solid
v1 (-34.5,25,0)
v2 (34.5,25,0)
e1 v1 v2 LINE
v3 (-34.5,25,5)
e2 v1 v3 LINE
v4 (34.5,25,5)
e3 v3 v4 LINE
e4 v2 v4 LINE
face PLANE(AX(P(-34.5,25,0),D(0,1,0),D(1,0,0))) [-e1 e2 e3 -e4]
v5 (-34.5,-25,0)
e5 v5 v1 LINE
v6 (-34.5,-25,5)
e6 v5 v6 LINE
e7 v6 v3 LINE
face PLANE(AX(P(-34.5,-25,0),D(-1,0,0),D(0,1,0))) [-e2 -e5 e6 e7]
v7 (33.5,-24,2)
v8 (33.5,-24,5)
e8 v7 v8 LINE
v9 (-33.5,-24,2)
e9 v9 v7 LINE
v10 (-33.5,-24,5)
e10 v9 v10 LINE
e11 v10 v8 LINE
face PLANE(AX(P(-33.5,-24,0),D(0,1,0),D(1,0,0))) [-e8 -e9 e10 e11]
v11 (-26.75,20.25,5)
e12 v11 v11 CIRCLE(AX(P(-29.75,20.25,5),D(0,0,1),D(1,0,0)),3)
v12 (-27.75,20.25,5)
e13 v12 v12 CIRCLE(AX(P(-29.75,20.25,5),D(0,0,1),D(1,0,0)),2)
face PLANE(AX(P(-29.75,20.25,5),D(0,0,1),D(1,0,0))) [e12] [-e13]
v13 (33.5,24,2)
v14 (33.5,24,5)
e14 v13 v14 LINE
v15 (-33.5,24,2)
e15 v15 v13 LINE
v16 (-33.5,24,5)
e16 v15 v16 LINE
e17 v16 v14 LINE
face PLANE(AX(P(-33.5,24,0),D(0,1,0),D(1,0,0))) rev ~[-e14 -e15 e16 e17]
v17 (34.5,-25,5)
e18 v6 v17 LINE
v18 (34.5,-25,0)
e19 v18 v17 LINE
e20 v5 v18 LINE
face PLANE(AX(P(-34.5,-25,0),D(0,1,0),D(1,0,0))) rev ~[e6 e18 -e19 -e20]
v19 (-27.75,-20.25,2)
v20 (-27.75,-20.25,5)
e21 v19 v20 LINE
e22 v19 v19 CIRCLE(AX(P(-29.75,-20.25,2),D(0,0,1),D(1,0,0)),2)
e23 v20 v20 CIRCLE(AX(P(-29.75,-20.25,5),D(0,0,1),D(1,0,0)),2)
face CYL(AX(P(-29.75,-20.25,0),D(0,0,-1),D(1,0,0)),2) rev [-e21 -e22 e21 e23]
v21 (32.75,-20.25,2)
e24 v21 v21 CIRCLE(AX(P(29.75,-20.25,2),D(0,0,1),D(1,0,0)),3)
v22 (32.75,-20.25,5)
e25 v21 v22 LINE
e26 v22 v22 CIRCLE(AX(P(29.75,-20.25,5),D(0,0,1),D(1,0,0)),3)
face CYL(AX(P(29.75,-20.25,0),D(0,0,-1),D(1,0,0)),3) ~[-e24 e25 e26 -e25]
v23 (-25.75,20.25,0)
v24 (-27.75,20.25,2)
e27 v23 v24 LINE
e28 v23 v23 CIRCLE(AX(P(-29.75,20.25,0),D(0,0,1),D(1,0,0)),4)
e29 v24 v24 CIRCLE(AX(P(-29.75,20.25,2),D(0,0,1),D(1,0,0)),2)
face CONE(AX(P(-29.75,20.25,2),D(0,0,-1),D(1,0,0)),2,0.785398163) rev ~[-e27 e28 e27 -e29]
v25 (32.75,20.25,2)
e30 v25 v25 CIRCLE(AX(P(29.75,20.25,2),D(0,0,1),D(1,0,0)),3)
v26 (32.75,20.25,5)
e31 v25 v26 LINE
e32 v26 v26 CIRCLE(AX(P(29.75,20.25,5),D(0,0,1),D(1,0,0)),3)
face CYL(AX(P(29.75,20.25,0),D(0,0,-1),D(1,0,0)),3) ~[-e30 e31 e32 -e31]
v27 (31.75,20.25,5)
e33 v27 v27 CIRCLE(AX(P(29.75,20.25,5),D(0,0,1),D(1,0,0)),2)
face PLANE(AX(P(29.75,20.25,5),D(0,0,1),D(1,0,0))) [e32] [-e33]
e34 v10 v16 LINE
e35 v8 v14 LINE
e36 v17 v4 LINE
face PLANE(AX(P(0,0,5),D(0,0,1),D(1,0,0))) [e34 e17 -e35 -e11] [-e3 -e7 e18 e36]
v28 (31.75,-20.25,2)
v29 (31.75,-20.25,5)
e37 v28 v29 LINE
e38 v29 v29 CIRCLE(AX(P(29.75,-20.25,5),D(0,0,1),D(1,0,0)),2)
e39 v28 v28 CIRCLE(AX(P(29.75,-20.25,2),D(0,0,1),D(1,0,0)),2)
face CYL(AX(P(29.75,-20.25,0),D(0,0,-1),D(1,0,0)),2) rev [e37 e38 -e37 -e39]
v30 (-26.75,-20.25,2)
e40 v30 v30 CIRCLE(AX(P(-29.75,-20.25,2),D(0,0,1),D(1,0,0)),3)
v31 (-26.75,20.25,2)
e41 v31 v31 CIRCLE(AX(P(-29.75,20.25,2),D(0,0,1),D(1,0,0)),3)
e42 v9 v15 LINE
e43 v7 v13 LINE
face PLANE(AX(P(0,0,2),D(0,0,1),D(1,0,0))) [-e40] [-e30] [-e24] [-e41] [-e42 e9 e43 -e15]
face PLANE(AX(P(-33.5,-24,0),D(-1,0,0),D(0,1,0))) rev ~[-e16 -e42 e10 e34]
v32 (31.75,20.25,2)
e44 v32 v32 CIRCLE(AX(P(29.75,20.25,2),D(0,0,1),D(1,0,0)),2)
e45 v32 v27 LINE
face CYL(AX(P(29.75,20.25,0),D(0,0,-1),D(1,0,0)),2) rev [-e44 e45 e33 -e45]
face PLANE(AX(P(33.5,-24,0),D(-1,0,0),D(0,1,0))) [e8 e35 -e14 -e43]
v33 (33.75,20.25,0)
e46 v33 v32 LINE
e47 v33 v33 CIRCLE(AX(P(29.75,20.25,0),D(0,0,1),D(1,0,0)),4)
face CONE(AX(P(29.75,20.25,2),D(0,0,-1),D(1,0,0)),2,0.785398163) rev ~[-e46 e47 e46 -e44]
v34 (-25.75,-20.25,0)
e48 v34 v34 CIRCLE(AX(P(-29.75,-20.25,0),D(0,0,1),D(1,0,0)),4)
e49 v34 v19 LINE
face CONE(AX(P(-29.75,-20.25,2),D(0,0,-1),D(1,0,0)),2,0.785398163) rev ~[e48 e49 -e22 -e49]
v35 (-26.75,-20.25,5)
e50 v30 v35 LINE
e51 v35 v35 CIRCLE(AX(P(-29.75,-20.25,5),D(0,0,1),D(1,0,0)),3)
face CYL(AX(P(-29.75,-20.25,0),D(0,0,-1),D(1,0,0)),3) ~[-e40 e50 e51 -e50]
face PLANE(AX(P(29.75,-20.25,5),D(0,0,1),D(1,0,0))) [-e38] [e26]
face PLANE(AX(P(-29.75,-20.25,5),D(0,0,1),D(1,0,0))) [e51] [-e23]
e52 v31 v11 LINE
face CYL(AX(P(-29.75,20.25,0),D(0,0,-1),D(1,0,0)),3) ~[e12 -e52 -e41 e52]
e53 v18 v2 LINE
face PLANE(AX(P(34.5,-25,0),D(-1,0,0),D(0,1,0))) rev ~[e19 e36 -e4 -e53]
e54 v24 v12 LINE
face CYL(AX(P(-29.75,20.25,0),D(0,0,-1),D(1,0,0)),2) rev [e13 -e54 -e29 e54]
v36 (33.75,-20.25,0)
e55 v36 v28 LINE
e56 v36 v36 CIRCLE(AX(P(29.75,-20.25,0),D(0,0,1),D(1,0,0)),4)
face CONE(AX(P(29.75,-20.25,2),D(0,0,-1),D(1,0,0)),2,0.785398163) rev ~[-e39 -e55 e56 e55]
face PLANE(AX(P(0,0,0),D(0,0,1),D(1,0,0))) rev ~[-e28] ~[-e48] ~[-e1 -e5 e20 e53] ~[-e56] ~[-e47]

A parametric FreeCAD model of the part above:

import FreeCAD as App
import Part
import Sketcher
from FreeCAD import Vector


def edges_at(feature, points):
    """Names of the edges that pass closest to the given points."""
    edges = feature.Shape.Edges
    near = lambda p: min(range(len(edges)), key=lambda i: edges[i].distToShape(Part.Vertex(*p))[0])
    return sorted({f"Edge{near(p) + 1}" for p in points})

doc = App.newDocument("Part")
params = doc.addObject("Spreadsheet::Sheet", "Params")
for row, (alias, value) in enumerate([
    ("sketch1_diameter", "6 mm"),
    ("sketch1_width", "67 mm"),
    ("sketch1_height", "48 mm"),
    ("pad1_length", "2 mm"),
    ("sketch2_diameter", "6 mm"),
    ("sketch2_diameter2", "4 mm"),
    ("pad2_length", "5 mm"),
    ("sketch3_width", "69 mm"),
    ("sketch3_width2", "67 mm"),
    ("sketch3_height", "50 mm"),
    ("sketch3_height2", "48 mm"),
    ("pad3_length", "5 mm"),
    ("chamfer_size", "2 mm"),
], start=1):
    params.set(f"A{row}", alias)
    params.set(f"B{row}", "=" + value)
    params.setAlias(f"B{row}", alias)

body = doc.addObject("PartDesign::Body", "Body")

# Sketch on XY plane
sketch1 = body.newObject("Sketcher::SketchObject", "Sketch")
sketch1.AttachmentSupport = (doc.getObject("XY_Plane"), [""])
sketch1.MapMode = "FlatFace"
sketch1.addGeometry(Part.LineSegment(Vector(-33.5, 24, 0), Vector(-33.5, -24, 0)), False)
sketch1.addGeometry(Part.LineSegment(Vector(-33.5, -24, 0), Vector(33.5, -24, 0)), False)
sketch1.addGeometry(Part.LineSegment(Vector(33.5, -24, 0), Vector(33.5, 24, 0)), False)
sketch1.addGeometry(Part.LineSegment(Vector(33.5, 24, 0), Vector(-33.5, 24, 0)), False)
sketch1.addGeometry(Part.Circle(Vector(-29.8, -20.2, 0), Vector(0, 0, 1), 3), False)
sketch1.addGeometry(Part.Circle(Vector(29.8, -20.2, 0), Vector(0, 0, 1), 3), False)
sketch1.addGeometry(Part.Circle(Vector(-29.8, 20.2, 0), Vector(0, 0, 1), 3), False)
sketch1.addGeometry(Part.Circle(Vector(29.8, 20.2, 0), Vector(0, 0, 1), 3), False)
sketch1.addConstraint(Sketcher.Constraint("Coincident", 0, 2, 1, 1))
sketch1.addConstraint(Sketcher.Constraint("Coincident", 1, 2, 2, 1))
sketch1.addConstraint(Sketcher.Constraint("Coincident", 2, 2, 3, 1))
sketch1.addConstraint(Sketcher.Constraint("Coincident", 3, 2, 0, 1))
sketch1.addConstraint(Sketcher.Constraint("Vertical", 0))
sketch1.addConstraint(Sketcher.Constraint("Horizontal", 1))
sketch1.addConstraint(Sketcher.Constraint("Vertical", 2))
sketch1.addConstraint(Sketcher.Constraint("Horizontal", 3))
sketch1.addConstraint(Sketcher.Constraint("Equal", 4, 5))
sketch1.addConstraint(Sketcher.Constraint("Equal", 5, 6))
sketch1.addConstraint(Sketcher.Constraint("Equal", 6, 7))
sketch1.addConstraint(Sketcher.Constraint("Symmetric", 5, 3, 6, 3, -1, 1))
sketch1.addConstraint(Sketcher.Constraint("Symmetric", 4, 3, 7, 3, -1, 1))
sketch1.addConstraint(Sketcher.Constraint("Symmetric", 0, 2, 2, 2, -1, 1))
sketch1.addConstraint(Sketcher.Constraint("Symmetric", 4, 3, 5, 3, -2))
sketch1.addConstraint(Sketcher.Constraint("Diameter", 4, 6.0))
sketch1.addConstraint(Sketcher.Constraint("DistanceX", 1, 1, 1, 2, 67.0))
sketch1.addConstraint(Sketcher.Constraint("DistanceY", 0, 2, 0, 1, 48.0))
sketch1.addConstraint(Sketcher.Constraint("DistanceX", 4, 3, 5, 3, 59.5))
sketch1.addConstraint(Sketcher.Constraint("DistanceY", 4, 3, 6, 3, 40.5))
sketch1.setExpression("Constraints[15]", "Params.sketch1_diameter")
sketch1.setExpression("Constraints[16]", "Params.sketch1_width")
sketch1.setExpression("Constraints[17]", "Params.sketch1_height")
pad1 = body.newObject("PartDesign::Pad", "Pad")
pad1.Profile = sketch1
pad1.setExpression("Length", "Params.pad1_length")

# Sketch on XY plane
sketch2 = body.newObject("Sketcher::SketchObject", "Sketch001")
sketch2.AttachmentSupport = (doc.getObject("XY_Plane"), [""])
sketch2.MapMode = "FlatFace"
sketch2.addGeometry(Part.Circle(Vector(-29.8, 20.2, 0), Vector(0, 0, 1), 3), False)
sketch2.addGeometry(Part.Circle(Vector(-29.8, 20.2, 0), Vector(0, 0, 1), 2), False)
sketch2.addGeometry(Part.Circle(Vector(29.8, 20.2, 0), Vector(0, 0, 1), 3), False)
sketch2.addGeometry(Part.Circle(Vector(29.8, 20.2, 0), Vector(0, 0, 1), 2), False)
sketch2.addGeometry(Part.Circle(Vector(29.8, -20.2, 0), Vector(0, 0, 1), 3), False)
sketch2.addGeometry(Part.Circle(Vector(29.8, -20.2, 0), Vector(0, 0, 1), 2), False)
sketch2.addGeometry(Part.Circle(Vector(-29.8, -20.2, 0), Vector(0, 0, 1), 3), False)
sketch2.addGeometry(Part.Circle(Vector(-29.8, -20.2, 0), Vector(0, 0, 1), 2), False)
sketch2.addConstraint(Sketcher.Constraint("Coincident", 1, 3, 0, 3))
sketch2.addConstraint(Sketcher.Constraint("Coincident", 3, 3, 2, 3))
sketch2.addConstraint(Sketcher.Constraint("Coincident", 5, 3, 4, 3))
sketch2.addConstraint(Sketcher.Constraint("Coincident", 7, 3, 6, 3))
sketch2.addConstraint(Sketcher.Constraint("Equal", 0, 2))
sketch2.addConstraint(Sketcher.Constraint("Equal", 1, 3))
sketch2.addConstraint(Sketcher.Constraint("Equal", 2, 4))
sketch2.addConstraint(Sketcher.Constraint("Equal", 3, 5))
sketch2.addConstraint(Sketcher.Constraint("Equal", 4, 6))
sketch2.addConstraint(Sketcher.Constraint("Equal", 5, 7))
sketch2.addConstraint(Sketcher.Constraint("Symmetric", 0, 3, 4, 3, -1, 1))
sketch2.addConstraint(Sketcher.Constraint("Symmetric", 2, 3, 6, 3, -1, 1))
sketch2.addConstraint(Sketcher.Constraint("Symmetric", 0, 3, 2, 3, -2))
sketch2.addConstraint(Sketcher.Constraint("Diameter", 0, 6.0))
sketch2.addConstraint(Sketcher.Constraint("Diameter", 1, 4.0))
sketch2.addConstraint(Sketcher.Constraint("DistanceX", 0, 3, 2, 3, 59.5))
sketch2.addConstraint(Sketcher.Constraint("DistanceY", 4, 3, 2, 3, 40.5))
sketch2.setExpression("Constraints[13]", "Params.sketch2_diameter")
sketch2.setExpression("Constraints[14]", "Params.sketch2_diameter2")
pad2 = body.newObject("PartDesign::Pad", "Pad001")
pad2.Profile = sketch2
pad2.setExpression("Length", "Params.pad2_length")

# Sketch on XY plane
sketch3 = body.newObject("Sketcher::SketchObject", "Sketch002")
sketch3.AttachmentSupport = (doc.getObject("XY_Plane"), [""])
sketch3.MapMode = "FlatFace"
sketch3.addGeometry(Part.LineSegment(Vector(-34, 25, 0), Vector(-34, -25, 0)), False)
sketch3.addGeometry(Part.LineSegment(Vector(-34, -25, 0), Vector(34, -25, 0)), False)
sketch3.addGeometry(Part.LineSegment(Vector(34, -25, 0), Vector(34, 25, 0)), False)
sketch3.addGeometry(Part.LineSegment(Vector(34, 25, 0), Vector(-34, 25, 0)), False)
sketch3.addGeometry(Part.LineSegment(Vector(34, -24, 0), Vector(-34, -24, 0)), False)
sketch3.addGeometry(Part.LineSegment(Vector(-34, -24, 0), Vector(-34, 24, 0)), False)
sketch3.addGeometry(Part.LineSegment(Vector(-34, 24, 0), Vector(34, 24, 0)), False)
sketch3.addGeometry(Part.LineSegment(Vector(34, 24, 0), Vector(34, -24, 0)), False)
sketch3.addConstraint(Sketcher.Constraint("Coincident", 0, 2, 1, 1))
sketch3.addConstraint(Sketcher.Constraint("Coincident", 1, 2, 2, 1))
sketch3.addConstraint(Sketcher.Constraint("Coincident", 2, 2, 3, 1))
sketch3.addConstraint(Sketcher.Constraint("Coincident", 3, 2, 0, 1))
sketch3.addConstraint(Sketcher.Constraint("Coincident", 4, 2, 5, 1))
sketch3.addConstraint(Sketcher.Constraint("Coincident", 5, 2, 6, 1))
sketch3.addConstraint(Sketcher.Constraint("Coincident", 6, 2, 7, 1))
sketch3.addConstraint(Sketcher.Constraint("Coincident", 7, 2, 4, 1))
sketch3.addConstraint(Sketcher.Constraint("Vertical", 0))
sketch3.addConstraint(Sketcher.Constraint("Horizontal", 1))
sketch3.addConstraint(Sketcher.Constraint("Vertical", 2))
sketch3.addConstraint(Sketcher.Constraint("Horizontal", 3))
sketch3.addConstraint(Sketcher.Constraint("Horizontal", 4))
sketch3.addConstraint(Sketcher.Constraint("Vertical", 5))
sketch3.addConstraint(Sketcher.Constraint("Horizontal", 6))
sketch3.addConstraint(Sketcher.Constraint("Vertical", 7))
sketch3.addConstraint(Sketcher.Constraint("Symmetric", 0, 2, 2, 2, -1, 1))
sketch3.addConstraint(Sketcher.Constraint("Symmetric", 4, 2, 6, 2, -1, 1))
sketch3.addConstraint(Sketcher.Constraint("DistanceX", 1, 1, 1, 2, 69.0))
sketch3.addConstraint(Sketcher.Constraint("DistanceX", 4, 2, 4, 1, 67.0))
sketch3.addConstraint(Sketcher.Constraint("DistanceY", 0, 2, 0, 1, 50.0))
sketch3.addConstraint(Sketcher.Constraint("DistanceY", 5, 1, 5, 2, 48.0))
sketch3.setExpression("Constraints[18]", "Params.sketch3_width")
sketch3.setExpression("Constraints[19]", "Params.sketch3_width2")
sketch3.setExpression("Constraints[20]", "Params.sketch3_height")
sketch3.setExpression("Constraints[21]", "Params.sketch3_height2")
pad3 = body.newObject("PartDesign::Pad", "Pad002")
pad3.Profile = sketch3
pad3.setExpression("Length", "Params.pad3_length")
doc.recompute()

chamfer = body.newObject("PartDesign::Chamfer", "Chamfer")
chamfer.Base = (pad3, edges_at(pad3, [
    (27.75, -20.25, 0),
    (27.75, 20.25, 0),
    (-31.75, 20.25, 0),
    (-31.75, -20.25, 0),
]))
chamfer.setExpression("Size", "Params.chamfer_size")

doc.recompute()
